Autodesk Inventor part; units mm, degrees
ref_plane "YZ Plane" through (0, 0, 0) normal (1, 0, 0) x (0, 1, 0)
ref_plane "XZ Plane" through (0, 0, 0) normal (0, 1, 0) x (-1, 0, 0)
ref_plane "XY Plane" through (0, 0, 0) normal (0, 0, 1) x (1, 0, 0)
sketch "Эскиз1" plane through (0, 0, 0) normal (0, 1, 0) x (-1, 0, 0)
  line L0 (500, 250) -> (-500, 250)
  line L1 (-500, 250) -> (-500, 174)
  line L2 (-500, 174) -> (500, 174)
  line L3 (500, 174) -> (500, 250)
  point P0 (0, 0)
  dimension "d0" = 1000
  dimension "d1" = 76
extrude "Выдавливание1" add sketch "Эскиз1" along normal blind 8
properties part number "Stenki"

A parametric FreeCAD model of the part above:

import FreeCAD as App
import Part
import Sketcher

V = App.Vector
Q = App.Units.Quantity

doc = App.newDocument("Part")
body = doc.addObject("PartDesign::Body", "Body")

sketch1 = body.newObject("Sketcher::SketchObject", "Sketch")
sketch1.AttachmentSupport = (doc.getObject("XZ_Plane"), [""])
sketch1.MapMode = "FlatFace"
sketch1.addGeometry([
    Part.LineSegment(V(-500, 174, 0), V(-500, 250, 0)),
    Part.LineSegment(V(-500, 250, 0), V(500, 250, 0)),
    Part.LineSegment(V(500, 250, 0), V(500, 174, 0)),
    Part.LineSegment(V(500, 174, 0), V(-500, 174, 0)),
], False)
sketch1.addConstraint([
    Sketcher.Constraint("Coincident", 0, 2, 1, 1),
    Sketcher.Constraint("Coincident", 1, 2, 2, 1),
    Sketcher.Constraint("Coincident", 2, 2, 3, 1),
    Sketcher.Constraint("Coincident", 3, 2, 0, 1),
    Sketcher.Constraint("Vertical", 0),
    Sketcher.Constraint("Horizontal", 1),
    Sketcher.Constraint("Vertical", 2),
    Sketcher.Constraint("Horizontal", 3),
    Sketcher.Constraint("DistanceX", 1, 1, 1, 2, Q("1000 mm")),
    Sketcher.Constraint("DistanceY", 0, 1, 0, 2, Q("76 mm")),
    Sketcher.Constraint("DistanceX", 0, 2, -1, 1, Q("500 mm")),
    Sketcher.Constraint("DistanceY", -1, 1, 0, 2, Q("250 mm")),
])
pad1 = body.newObject("PartDesign::Pad", "Pad")
pad1.Profile = sketch1
pad1.Length = 8
pad1.Reversed = True

doc.recompute()
